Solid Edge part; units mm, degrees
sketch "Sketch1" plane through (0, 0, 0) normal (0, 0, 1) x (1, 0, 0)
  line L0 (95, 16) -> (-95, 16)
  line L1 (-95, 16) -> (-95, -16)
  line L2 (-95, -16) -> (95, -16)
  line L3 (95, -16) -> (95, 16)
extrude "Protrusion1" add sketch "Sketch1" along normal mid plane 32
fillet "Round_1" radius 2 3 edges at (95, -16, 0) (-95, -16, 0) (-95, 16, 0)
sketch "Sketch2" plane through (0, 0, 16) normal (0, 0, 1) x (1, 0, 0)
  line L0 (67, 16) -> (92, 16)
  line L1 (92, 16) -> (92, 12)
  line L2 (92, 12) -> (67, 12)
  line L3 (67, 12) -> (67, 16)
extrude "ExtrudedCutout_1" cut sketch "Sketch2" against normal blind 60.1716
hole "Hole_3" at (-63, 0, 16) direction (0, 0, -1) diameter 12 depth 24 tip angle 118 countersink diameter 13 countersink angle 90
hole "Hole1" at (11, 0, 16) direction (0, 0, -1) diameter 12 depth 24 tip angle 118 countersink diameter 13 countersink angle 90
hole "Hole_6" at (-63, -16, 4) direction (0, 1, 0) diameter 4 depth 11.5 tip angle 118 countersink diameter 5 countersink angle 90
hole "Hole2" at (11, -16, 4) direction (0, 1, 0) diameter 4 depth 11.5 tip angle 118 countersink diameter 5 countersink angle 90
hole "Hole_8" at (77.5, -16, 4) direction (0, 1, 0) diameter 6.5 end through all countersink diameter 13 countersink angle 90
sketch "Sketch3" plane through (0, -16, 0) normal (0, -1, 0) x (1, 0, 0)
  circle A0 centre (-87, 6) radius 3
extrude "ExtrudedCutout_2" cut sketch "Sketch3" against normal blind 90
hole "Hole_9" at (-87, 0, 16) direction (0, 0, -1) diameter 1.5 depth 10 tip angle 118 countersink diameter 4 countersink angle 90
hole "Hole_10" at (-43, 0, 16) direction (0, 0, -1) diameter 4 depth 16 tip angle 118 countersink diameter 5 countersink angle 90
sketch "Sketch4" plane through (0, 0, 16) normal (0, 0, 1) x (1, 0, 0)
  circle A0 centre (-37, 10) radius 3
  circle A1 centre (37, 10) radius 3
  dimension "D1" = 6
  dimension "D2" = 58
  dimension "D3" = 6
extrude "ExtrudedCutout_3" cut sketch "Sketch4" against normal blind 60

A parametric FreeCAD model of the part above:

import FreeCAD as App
import Part
import Sketcher


def edges_at(feature, points):
    """Names of the edges that pass closest to the given points."""
    edges = feature.Shape.Edges
    near = lambda p: min(range(len(edges)), key=lambda i: edges[i].distToShape(Part.Vertex(*p))[0])
    return sorted({f"Edge{near(p) + 1}" for p in points})


def add_polygon(sketch, points):
    """Adds a closed chain of lines whose ends are joined by coincident constraints."""
    first, n = sketch.GeometryCount, len(points)
    for a, b in zip(points, points[1:] + points[:1]):
        sketch.addGeometry(Part.LineSegment(App.Vector(*a, 0), App.Vector(*b, 0)), False)
    for i in range(n):
        sketch.addConstraint(Sketcher.Constraint("Coincident", first + i, 2, first + (i + 1) % n, 1))

doc = App.newDocument("Part")
body = doc.addObject("PartDesign::Body", "Body")

# Sketch on XY plane
sketch1 = doc.addObject("Sketcher::SketchObject", "Sketch")
body.addObject(sketch1)
sketch1.AttachmentSupport = (doc.XY_Plane, [""])
sketch1.MapMode = "FlatFace"
add_polygon(sketch1, [(95, -16), (95, 16), (-95, 16), (-95, -16)])  # lines 0-3
sketch1.addConstraint(Sketcher.Constraint("Vertical", 0))
sketch1.addConstraint(Sketcher.Constraint("Horizontal", 1))
sketch1.addConstraint(Sketcher.Constraint("Vertical", 2))
sketch1.addConstraint(Sketcher.Constraint("Horizontal", 3))
sketch1.addConstraint(Sketcher.Constraint("Symmetric", 0, 2, 2, 2, -1, 1))
sketch1.addConstraint(Sketcher.Constraint("DistanceX", 1, 2, 1, 1, 190.0))
sketch1.addConstraint(Sketcher.Constraint("DistanceY", 0, 1, 0, 2, 32.0))
pad1 = doc.addObject("PartDesign::Pad", "Pad")
body.addObject(pad1)
pad1.Profile = sketch1
pad1.Length = 32
pad1.Midplane = True
doc.recompute()

fillet = doc.addObject("PartDesign::Fillet", "Fillet")
body.addObject(fillet)
fillet.Base = (pad1, edges_at(pad1, [(95, -16, 0), (-95, -16, 0), (-95, 16, 0)]))
fillet.Radius = 2

# Sketch on XY plane
sketch2 = doc.addObject("Sketcher::SketchObject", "Sketch001")
body.addObject(sketch2)
sketch2.AttachmentSupport = (doc.XY_Plane, [""])
sketch2.MapMode = "FlatFace"
sketch2.AttachmentOffset = App.Placement(App.Vector(0, 0, 16), App.Rotation())
add_polygon(sketch2, [(92, 16), (67, 16), (67, 12), (92, 12)])  # lines 0-3
sketch2.addConstraint(Sketcher.Constraint("Horizontal", 0))
sketch2.addConstraint(Sketcher.Constraint("Vertical", 1))
sketch2.addConstraint(Sketcher.Constraint("Horizontal", 2))
sketch2.addConstraint(Sketcher.Constraint("Vertical", 3))
sketch2.addConstraint(Sketcher.Constraint("DistanceX", 0, 2, 0, 1, 25.0))
sketch2.addConstraint(Sketcher.Constraint("DistanceY", 1, 2, 1, 1, 4.0))
sketch2.addConstraint(Sketcher.Constraint("DistanceX", -1, 1, 0, 2, 67.0))
sketch2.addConstraint(Sketcher.Constraint("DistanceY", -1, 1, 0, 2, 16.0))
pocket1 = doc.addObject("PartDesign::Pocket", "Pocket")
body.addObject(pocket1)
pocket1.Profile = sketch2
pocket1.Length = 60.1716

# Sketch on XY plane
sketch3 = doc.addObject("Sketcher::SketchObject", "Sketch002")
body.addObject(sketch3)
sketch3.AttachmentSupport = (doc.XY_Plane, [""])
sketch3.MapMode = "FlatFace"
sketch3.AttachmentOffset = App.Placement(App.Vector(0, 0, 16), App.Rotation())
sketch3.addGeometry(Part.Circle(App.Vector(-63, 0, 0), App.Vector(0, 0, 1), 6), False)
sketch3.addConstraint(Sketcher.Constraint("PointOnObject", 0, 3, -1))
sketch3.addConstraint(Sketcher.Constraint("Diameter", 0, 12.0))
sketch3.addConstraint(Sketcher.Constraint("DistanceX", 0, 3, -1, 1, 63.0))
doc.recompute()
hole = doc.addObject("PartDesign::Hole", "Hole")
body.addObject(hole)
hole.Profile = sketch3
hole.ThreadType = "None"
hole.Diameter = 12
hole.DepthType = "Dimension"
hole.Depth = 24
hole.DrillPoint = "Angled"
hole.DrillPointAngle = 118
hole.HoleCutType = "Countersink"
hole.HoleCutDiameter = 13
hole.HoleCutCountersinkAngle = 90

# Sketch on XY plane
sketch4 = doc.addObject("Sketcher::SketchObject", "Sketch003")
body.addObject(sketch4)
sketch4.AttachmentSupport = (doc.XY_Plane, [""])
sketch4.MapMode = "FlatFace"
sketch4.AttachmentOffset = App.Placement(App.Vector(0, 0, 16), App.Rotation())
sketch4.addGeometry(Part.Circle(App.Vector(11, 0, 0), App.Vector(0, 0, 1), 6), False)
sketch4.addConstraint(Sketcher.Constraint("PointOnObject", 0, 3, -1))
sketch4.addConstraint(Sketcher.Constraint("Diameter", 0, 12.0))
sketch4.addConstraint(Sketcher.Constraint("DistanceX", -1, 1, 0, 3, 11.0))
doc.recompute()
hole2 = doc.addObject("PartDesign::Hole", "Hole001")
body.addObject(hole2)
hole2.Profile = sketch4
hole2.ThreadType = "None"
hole2.Diameter = 12
hole2.DepthType = "Dimension"
hole2.Depth = 24
hole2.DrillPoint = "Angled"
hole2.DrillPointAngle = 118
hole2.HoleCutType = "Countersink"
hole2.HoleCutDiameter = 13
hole2.HoleCutCountersinkAngle = 90

# Sketch on XZ plane
sketch5 = doc.addObject("Sketcher::SketchObject", "Sketch004")
body.addObject(sketch5)
sketch5.AttachmentSupport = (doc.XZ_Plane, [""])
sketch5.MapMode = "FlatFace"
sketch5.AttachmentOffset = App.Placement(App.Vector(0, 0, 16), App.Rotation())
sketch5.addGeometry(Part.Circle(App.Vector(-63, 4, 0), App.Vector(0, 0, 1), 2), False)
sketch5.addConstraint(Sketcher.Constraint("Diameter", 0, 4.0))
sketch5.addConstraint(Sketcher.Constraint("DistanceX", 0, 3, -1, 1, 63.0))
sketch5.addConstraint(Sketcher.Constraint("DistanceY", -1, 1, 0, 3, 4.0))
doc.recompute()
hole3 = doc.addObject("PartDesign::Hole", "Hole002")
body.addObject(hole3)
hole3.Profile = sketch5
hole3.ThreadType = "None"
hole3.Diameter = 4
hole3.DepthType = "Dimension"
hole3.Depth = 11.5
hole3.DrillPoint = "Angled"
hole3.DrillPointAngle = 118
hole3.HoleCutType = "Countersink"
hole3.HoleCutDiameter = 5
hole3.HoleCutCountersinkAngle = 90

# Sketch on XZ plane
sketch6 = doc.addObject("Sketcher::SketchObject", "Sketch005")
body.addObject(sketch6)
sketch6.AttachmentSupport = (doc.XZ_Plane, [""])
sketch6.MapMode = "FlatFace"
sketch6.AttachmentOffset = App.Placement(App.Vector(0, 0, 16), App.Rotation())
sketch6.addGeometry(Part.Circle(App.Vector(11, 4, 0), App.Vector(0, 0, 1), 2), False)
sketch6.addConstraint(Sketcher.Constraint("Diameter", 0, 4.0))
sketch6.addConstraint(Sketcher.Constraint("DistanceX", -1, 1, 0, 3, 11.0))
sketch6.addConstraint(Sketcher.Constraint("DistanceY", -1, 1, 0, 3, 4.0))
doc.recompute()
hole4 = doc.addObject("PartDesign::Hole", "Hole003")
body.addObject(hole4)
hole4.Profile = sketch6
hole4.ThreadType = "None"
hole4.Diameter = 4
hole4.DepthType = "Dimension"
hole4.Depth = 11.5
hole4.DrillPoint = "Angled"
hole4.DrillPointAngle = 118
hole4.HoleCutType = "Countersink"
hole4.HoleCutDiameter = 5
hole4.HoleCutCountersinkAngle = 90

# Sketch on XZ plane
sketch7 = doc.addObject("Sketcher::SketchObject", "Sketch006")
body.addObject(sketch7)
sketch7.AttachmentSupport = (doc.XZ_Plane, [""])
sketch7.MapMode = "FlatFace"
sketch7.AttachmentOffset = App.Placement(App.Vector(0, 0, 16), App.Rotation())
sketch7.addGeometry(Part.Circle(App.Vector(77.5, 4, 0), App.Vector(0, 0, 1), 3.2), False)
sketch7.addConstraint(Sketcher.Constraint("Diameter", 0, 6.5))
sketch7.addConstraint(Sketcher.Constraint("DistanceY", -1, 1, 0, 3, 4.0))
sketch7.addConstraint(Sketcher.Constraint("DistanceX", -1, 1, 0, 3, 77.5))
doc.recompute()
hole5 = doc.addObject("PartDesign::Hole", "Hole004")
body.addObject(hole5)
hole5.Profile = sketch7
hole5.ThreadType = "None"
hole5.Diameter = 6.5
hole5.DepthType = "ThroughAll"
hole5.HoleCutType = "Countersink"
hole5.HoleCutDiameter = 13
hole5.HoleCutCountersinkAngle = 90

# Sketch on XZ plane
sketch8 = doc.addObject("Sketcher::SketchObject", "Sketch007")
body.addObject(sketch8)
sketch8.AttachmentSupport = (doc.XZ_Plane, [""])
sketch8.MapMode = "FlatFace"
sketch8.AttachmentOffset = App.Placement(App.Vector(0, 0, 16), App.Rotation())
sketch8.addGeometry(Part.Circle(App.Vector(-87, 6, 0), App.Vector(0, 0, 1), 3), False)
sketch8.addConstraint(Sketcher.Constraint("Diameter", 0, 6.0))
sketch8.addConstraint(Sketcher.Constraint("DistanceX", 0, 3, -1, 1, 87.0))
sketch8.addConstraint(Sketcher.Constraint("DistanceY", -1, 1, 0, 3, 6.0))
pocket2 = doc.addObject("PartDesign::Pocket", "Pocket001")
body.addObject(pocket2)
pocket2.Profile = sketch8
pocket2.Length = 90

# Sketch on XY plane
sketch9 = doc.addObject("Sketcher::SketchObject", "Sketch008")
body.addObject(sketch9)
sketch9.AttachmentSupport = (doc.XY_Plane, [""])
sketch9.MapMode = "FlatFace"
sketch9.AttachmentOffset = App.Placement(App.Vector(0, 0, 16), App.Rotation())
sketch9.addGeometry(Part.Circle(App.Vector(-87, 0, 0), App.Vector(0, 0, 1), 0.8), False)
sketch9.addConstraint(Sketcher.Constraint("PointOnObject", 0, 3, -1))
sketch9.addConstraint(Sketcher.Constraint("Diameter", 0, 1.5))
sketch9.addConstraint(Sketcher.Constraint("DistanceX", 0, 3, -1, 1, 87.0))
doc.recompute()
hole6 = doc.addObject("PartDesign::Hole", "Hole005")
body.addObject(hole6)
hole6.Profile = sketch9
hole6.ThreadType = "None"
hole6.Diameter = 1.5
hole6.DepthType = "Dimension"
hole6.Depth = 10
hole6.DrillPoint = "Angled"
hole6.DrillPointAngle = 118
hole6.HoleCutType = "Countersink"
hole6.HoleCutDiameter = 4
hole6.HoleCutCountersinkAngle = 90

# Sketch on XY plane
sketch10 = doc.addObject("Sketcher::SketchObject", "Sketch009")
body.addObject(sketch10)
sketch10.AttachmentSupport = (doc.XY_Plane, [""])
sketch10.MapMode = "FlatFace"
sketch10.AttachmentOffset = App.Placement(App.Vector(0, 0, 16), App.Rotation())
sketch10.addGeometry(Part.Circle(App.Vector(-43, 0, 0), App.Vector(0, 0, 1), 2), False)
sketch10.addConstraint(Sketcher.Constraint("PointOnObject", 0, 3, -1))
sketch10.addConstraint(Sketcher.Constraint("Diameter", 0, 4.0))
sketch10.addConstraint(Sketcher.Constraint("DistanceX", 0, 3, -1, 1, 43.0))
doc.recompute()
hole7 = doc.addObject("PartDesign::Hole", "Hole006")
body.addObject(hole7)
hole7.Profile = sketch10
hole7.ThreadType = "None"
hole7.Diameter = 4
hole7.DepthType = "Dimension"
hole7.Depth = 16
hole7.DrillPoint = "Angled"
hole7.DrillPointAngle = 118
hole7.HoleCutType = "Countersink"
hole7.HoleCutDiameter = 5
hole7.HoleCutCountersinkAngle = 90

# Sketch on XY plane
sketch11 = doc.addObject("Sketcher::SketchObject", "Sketch010")
body.addObject(sketch11)
sketch11.AttachmentSupport = (doc.XY_Plane, [""])
sketch11.MapMode = "FlatFace"
sketch11.AttachmentOffset = App.Placement(App.Vector(0, 0, 16), App.Rotation())
sketch11.addGeometry(Part.Circle(App.Vector(-37, 10, 0), App.Vector(0, 0, 1), 3), False)
sketch11.addGeometry(Part.Circle(App.Vector(37, 10, 0), App.Vector(0, 0, 1), 3), False)
sketch11.addConstraint(Sketcher.Constraint("Equal", 0, 1))
sketch11.addConstraint(Sketcher.Constraint("Symmetric", 0, 3, 1, 3, -2))
sketch11.addConstraint(Sketcher.Constraint("Diameter", 0, 6.0))
sketch11.addConstraint(Sketcher.Constraint("DistanceX", 0, 3, -1, 1, 37.0))
sketch11.addConstraint(Sketcher.Constraint("DistanceY", -1, 1, 0, 3, 10.0))
pocket3 = doc.addObject("PartDesign::Pocket", "Pocket002")
body.addObject(pocket3)
pocket3.Profile = sketch11
pocket3.Length = 60

doc.recompute()
